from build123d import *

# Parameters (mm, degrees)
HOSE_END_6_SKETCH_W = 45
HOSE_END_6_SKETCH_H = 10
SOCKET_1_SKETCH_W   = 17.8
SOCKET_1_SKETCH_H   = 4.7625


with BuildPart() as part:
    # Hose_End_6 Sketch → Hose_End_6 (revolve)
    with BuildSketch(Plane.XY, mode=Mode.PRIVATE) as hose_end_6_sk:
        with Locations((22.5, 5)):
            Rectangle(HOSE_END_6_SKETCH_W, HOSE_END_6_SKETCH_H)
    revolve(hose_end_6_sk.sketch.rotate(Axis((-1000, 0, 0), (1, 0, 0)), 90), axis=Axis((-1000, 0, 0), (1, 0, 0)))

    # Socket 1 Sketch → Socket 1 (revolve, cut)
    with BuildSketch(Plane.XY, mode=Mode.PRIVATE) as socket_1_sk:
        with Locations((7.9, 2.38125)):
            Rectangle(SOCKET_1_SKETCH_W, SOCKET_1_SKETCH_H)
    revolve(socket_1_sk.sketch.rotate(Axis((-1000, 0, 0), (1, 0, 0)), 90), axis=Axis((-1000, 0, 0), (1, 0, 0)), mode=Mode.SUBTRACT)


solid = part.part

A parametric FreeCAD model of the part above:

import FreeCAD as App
import Part
import Sketcher


def add_polygon(sketch, points):
    """Adds a closed chain of lines whose ends are joined by coincident constraints."""
    first, n = sketch.GeometryCount, len(points)
    for a, b in zip(points, points[1:] + points[:1]):
        sketch.addGeometry(Part.LineSegment(App.Vector(*a, 0), App.Vector(*b, 0)), False)
    for i in range(n):
        sketch.addConstraint(Sketcher.Constraint("Coincident", first + i, 2, first + (i + 1) % n, 1))

doc = App.newDocument("Part")
body = doc.addObject("PartDesign::Body", "Body")

# Sketch on XY plane
sketch1 = body.newObject("Sketcher::SketchObject", "Sketch")
sketch1.AttachmentSupport = (doc.getObject("XY_Plane"), [""])
sketch1.MapMode = "FlatFace"
add_polygon(sketch1, [(0, 10), (0, 0), (45, 0), (45, 10)])  # lines 0-3
sketch1.addConstraint([
    Sketcher.Constraint("Vertical", 0),
    Sketcher.Constraint("Horizontal", 1),
    Sketcher.Constraint("Vertical", 2),
    Sketcher.Constraint("Horizontal", 3),
    Sketcher.Constraint("Coincident", 0, 2, -1, 1),
    Sketcher.Constraint("DistanceX", 1, 1, 1, 2, 45.0),
    Sketcher.Constraint("DistanceY", 0, 2, 0, 1, 10.0),
])
revolution = body.newObject("PartDesign::Revolution", "Revolution")
revolution.Profile = sketch1
revolution.ReferenceAxis = (sketch1, ["H_Axis"])
revolution.Angle = 360

# Sketch on XY plane
sketch2 = body.newObject("Sketcher::SketchObject", "Sketch001")
sketch2.AttachmentSupport = (doc.getObject("XY_Plane"), [""])
sketch2.MapMode = "FlatFace"
add_polygon(sketch2, [(-1, 4.8), (-1, 0), (16.8, 0), (16.8, 4.8)])  # lines 0-3
sketch2.addConstraint([
    Sketcher.Constraint("Vertical", 0),
    Sketcher.Constraint("Horizontal", 1),
    Sketcher.Constraint("Vertical", 2),
    Sketcher.Constraint("Horizontal", 3),
    Sketcher.Constraint("PointOnObject", 0, 2, -1),
    Sketcher.Constraint("DistanceX", 1, 1, 1, 2, 17.8),
    Sketcher.Constraint("DistanceX", 0, 2, -1, 1, 1.0),
    Sketcher.Constraint("DistanceY", 0, 2, 0, 1, 4.7625),
])
groove = body.newObject("PartDesign::Groove", "Groove")
groove.Profile = sketch2
groove.ReferenceAxis = (sketch2, ["H_Axis"])
groove.Angle = 360

doc.recompute()
